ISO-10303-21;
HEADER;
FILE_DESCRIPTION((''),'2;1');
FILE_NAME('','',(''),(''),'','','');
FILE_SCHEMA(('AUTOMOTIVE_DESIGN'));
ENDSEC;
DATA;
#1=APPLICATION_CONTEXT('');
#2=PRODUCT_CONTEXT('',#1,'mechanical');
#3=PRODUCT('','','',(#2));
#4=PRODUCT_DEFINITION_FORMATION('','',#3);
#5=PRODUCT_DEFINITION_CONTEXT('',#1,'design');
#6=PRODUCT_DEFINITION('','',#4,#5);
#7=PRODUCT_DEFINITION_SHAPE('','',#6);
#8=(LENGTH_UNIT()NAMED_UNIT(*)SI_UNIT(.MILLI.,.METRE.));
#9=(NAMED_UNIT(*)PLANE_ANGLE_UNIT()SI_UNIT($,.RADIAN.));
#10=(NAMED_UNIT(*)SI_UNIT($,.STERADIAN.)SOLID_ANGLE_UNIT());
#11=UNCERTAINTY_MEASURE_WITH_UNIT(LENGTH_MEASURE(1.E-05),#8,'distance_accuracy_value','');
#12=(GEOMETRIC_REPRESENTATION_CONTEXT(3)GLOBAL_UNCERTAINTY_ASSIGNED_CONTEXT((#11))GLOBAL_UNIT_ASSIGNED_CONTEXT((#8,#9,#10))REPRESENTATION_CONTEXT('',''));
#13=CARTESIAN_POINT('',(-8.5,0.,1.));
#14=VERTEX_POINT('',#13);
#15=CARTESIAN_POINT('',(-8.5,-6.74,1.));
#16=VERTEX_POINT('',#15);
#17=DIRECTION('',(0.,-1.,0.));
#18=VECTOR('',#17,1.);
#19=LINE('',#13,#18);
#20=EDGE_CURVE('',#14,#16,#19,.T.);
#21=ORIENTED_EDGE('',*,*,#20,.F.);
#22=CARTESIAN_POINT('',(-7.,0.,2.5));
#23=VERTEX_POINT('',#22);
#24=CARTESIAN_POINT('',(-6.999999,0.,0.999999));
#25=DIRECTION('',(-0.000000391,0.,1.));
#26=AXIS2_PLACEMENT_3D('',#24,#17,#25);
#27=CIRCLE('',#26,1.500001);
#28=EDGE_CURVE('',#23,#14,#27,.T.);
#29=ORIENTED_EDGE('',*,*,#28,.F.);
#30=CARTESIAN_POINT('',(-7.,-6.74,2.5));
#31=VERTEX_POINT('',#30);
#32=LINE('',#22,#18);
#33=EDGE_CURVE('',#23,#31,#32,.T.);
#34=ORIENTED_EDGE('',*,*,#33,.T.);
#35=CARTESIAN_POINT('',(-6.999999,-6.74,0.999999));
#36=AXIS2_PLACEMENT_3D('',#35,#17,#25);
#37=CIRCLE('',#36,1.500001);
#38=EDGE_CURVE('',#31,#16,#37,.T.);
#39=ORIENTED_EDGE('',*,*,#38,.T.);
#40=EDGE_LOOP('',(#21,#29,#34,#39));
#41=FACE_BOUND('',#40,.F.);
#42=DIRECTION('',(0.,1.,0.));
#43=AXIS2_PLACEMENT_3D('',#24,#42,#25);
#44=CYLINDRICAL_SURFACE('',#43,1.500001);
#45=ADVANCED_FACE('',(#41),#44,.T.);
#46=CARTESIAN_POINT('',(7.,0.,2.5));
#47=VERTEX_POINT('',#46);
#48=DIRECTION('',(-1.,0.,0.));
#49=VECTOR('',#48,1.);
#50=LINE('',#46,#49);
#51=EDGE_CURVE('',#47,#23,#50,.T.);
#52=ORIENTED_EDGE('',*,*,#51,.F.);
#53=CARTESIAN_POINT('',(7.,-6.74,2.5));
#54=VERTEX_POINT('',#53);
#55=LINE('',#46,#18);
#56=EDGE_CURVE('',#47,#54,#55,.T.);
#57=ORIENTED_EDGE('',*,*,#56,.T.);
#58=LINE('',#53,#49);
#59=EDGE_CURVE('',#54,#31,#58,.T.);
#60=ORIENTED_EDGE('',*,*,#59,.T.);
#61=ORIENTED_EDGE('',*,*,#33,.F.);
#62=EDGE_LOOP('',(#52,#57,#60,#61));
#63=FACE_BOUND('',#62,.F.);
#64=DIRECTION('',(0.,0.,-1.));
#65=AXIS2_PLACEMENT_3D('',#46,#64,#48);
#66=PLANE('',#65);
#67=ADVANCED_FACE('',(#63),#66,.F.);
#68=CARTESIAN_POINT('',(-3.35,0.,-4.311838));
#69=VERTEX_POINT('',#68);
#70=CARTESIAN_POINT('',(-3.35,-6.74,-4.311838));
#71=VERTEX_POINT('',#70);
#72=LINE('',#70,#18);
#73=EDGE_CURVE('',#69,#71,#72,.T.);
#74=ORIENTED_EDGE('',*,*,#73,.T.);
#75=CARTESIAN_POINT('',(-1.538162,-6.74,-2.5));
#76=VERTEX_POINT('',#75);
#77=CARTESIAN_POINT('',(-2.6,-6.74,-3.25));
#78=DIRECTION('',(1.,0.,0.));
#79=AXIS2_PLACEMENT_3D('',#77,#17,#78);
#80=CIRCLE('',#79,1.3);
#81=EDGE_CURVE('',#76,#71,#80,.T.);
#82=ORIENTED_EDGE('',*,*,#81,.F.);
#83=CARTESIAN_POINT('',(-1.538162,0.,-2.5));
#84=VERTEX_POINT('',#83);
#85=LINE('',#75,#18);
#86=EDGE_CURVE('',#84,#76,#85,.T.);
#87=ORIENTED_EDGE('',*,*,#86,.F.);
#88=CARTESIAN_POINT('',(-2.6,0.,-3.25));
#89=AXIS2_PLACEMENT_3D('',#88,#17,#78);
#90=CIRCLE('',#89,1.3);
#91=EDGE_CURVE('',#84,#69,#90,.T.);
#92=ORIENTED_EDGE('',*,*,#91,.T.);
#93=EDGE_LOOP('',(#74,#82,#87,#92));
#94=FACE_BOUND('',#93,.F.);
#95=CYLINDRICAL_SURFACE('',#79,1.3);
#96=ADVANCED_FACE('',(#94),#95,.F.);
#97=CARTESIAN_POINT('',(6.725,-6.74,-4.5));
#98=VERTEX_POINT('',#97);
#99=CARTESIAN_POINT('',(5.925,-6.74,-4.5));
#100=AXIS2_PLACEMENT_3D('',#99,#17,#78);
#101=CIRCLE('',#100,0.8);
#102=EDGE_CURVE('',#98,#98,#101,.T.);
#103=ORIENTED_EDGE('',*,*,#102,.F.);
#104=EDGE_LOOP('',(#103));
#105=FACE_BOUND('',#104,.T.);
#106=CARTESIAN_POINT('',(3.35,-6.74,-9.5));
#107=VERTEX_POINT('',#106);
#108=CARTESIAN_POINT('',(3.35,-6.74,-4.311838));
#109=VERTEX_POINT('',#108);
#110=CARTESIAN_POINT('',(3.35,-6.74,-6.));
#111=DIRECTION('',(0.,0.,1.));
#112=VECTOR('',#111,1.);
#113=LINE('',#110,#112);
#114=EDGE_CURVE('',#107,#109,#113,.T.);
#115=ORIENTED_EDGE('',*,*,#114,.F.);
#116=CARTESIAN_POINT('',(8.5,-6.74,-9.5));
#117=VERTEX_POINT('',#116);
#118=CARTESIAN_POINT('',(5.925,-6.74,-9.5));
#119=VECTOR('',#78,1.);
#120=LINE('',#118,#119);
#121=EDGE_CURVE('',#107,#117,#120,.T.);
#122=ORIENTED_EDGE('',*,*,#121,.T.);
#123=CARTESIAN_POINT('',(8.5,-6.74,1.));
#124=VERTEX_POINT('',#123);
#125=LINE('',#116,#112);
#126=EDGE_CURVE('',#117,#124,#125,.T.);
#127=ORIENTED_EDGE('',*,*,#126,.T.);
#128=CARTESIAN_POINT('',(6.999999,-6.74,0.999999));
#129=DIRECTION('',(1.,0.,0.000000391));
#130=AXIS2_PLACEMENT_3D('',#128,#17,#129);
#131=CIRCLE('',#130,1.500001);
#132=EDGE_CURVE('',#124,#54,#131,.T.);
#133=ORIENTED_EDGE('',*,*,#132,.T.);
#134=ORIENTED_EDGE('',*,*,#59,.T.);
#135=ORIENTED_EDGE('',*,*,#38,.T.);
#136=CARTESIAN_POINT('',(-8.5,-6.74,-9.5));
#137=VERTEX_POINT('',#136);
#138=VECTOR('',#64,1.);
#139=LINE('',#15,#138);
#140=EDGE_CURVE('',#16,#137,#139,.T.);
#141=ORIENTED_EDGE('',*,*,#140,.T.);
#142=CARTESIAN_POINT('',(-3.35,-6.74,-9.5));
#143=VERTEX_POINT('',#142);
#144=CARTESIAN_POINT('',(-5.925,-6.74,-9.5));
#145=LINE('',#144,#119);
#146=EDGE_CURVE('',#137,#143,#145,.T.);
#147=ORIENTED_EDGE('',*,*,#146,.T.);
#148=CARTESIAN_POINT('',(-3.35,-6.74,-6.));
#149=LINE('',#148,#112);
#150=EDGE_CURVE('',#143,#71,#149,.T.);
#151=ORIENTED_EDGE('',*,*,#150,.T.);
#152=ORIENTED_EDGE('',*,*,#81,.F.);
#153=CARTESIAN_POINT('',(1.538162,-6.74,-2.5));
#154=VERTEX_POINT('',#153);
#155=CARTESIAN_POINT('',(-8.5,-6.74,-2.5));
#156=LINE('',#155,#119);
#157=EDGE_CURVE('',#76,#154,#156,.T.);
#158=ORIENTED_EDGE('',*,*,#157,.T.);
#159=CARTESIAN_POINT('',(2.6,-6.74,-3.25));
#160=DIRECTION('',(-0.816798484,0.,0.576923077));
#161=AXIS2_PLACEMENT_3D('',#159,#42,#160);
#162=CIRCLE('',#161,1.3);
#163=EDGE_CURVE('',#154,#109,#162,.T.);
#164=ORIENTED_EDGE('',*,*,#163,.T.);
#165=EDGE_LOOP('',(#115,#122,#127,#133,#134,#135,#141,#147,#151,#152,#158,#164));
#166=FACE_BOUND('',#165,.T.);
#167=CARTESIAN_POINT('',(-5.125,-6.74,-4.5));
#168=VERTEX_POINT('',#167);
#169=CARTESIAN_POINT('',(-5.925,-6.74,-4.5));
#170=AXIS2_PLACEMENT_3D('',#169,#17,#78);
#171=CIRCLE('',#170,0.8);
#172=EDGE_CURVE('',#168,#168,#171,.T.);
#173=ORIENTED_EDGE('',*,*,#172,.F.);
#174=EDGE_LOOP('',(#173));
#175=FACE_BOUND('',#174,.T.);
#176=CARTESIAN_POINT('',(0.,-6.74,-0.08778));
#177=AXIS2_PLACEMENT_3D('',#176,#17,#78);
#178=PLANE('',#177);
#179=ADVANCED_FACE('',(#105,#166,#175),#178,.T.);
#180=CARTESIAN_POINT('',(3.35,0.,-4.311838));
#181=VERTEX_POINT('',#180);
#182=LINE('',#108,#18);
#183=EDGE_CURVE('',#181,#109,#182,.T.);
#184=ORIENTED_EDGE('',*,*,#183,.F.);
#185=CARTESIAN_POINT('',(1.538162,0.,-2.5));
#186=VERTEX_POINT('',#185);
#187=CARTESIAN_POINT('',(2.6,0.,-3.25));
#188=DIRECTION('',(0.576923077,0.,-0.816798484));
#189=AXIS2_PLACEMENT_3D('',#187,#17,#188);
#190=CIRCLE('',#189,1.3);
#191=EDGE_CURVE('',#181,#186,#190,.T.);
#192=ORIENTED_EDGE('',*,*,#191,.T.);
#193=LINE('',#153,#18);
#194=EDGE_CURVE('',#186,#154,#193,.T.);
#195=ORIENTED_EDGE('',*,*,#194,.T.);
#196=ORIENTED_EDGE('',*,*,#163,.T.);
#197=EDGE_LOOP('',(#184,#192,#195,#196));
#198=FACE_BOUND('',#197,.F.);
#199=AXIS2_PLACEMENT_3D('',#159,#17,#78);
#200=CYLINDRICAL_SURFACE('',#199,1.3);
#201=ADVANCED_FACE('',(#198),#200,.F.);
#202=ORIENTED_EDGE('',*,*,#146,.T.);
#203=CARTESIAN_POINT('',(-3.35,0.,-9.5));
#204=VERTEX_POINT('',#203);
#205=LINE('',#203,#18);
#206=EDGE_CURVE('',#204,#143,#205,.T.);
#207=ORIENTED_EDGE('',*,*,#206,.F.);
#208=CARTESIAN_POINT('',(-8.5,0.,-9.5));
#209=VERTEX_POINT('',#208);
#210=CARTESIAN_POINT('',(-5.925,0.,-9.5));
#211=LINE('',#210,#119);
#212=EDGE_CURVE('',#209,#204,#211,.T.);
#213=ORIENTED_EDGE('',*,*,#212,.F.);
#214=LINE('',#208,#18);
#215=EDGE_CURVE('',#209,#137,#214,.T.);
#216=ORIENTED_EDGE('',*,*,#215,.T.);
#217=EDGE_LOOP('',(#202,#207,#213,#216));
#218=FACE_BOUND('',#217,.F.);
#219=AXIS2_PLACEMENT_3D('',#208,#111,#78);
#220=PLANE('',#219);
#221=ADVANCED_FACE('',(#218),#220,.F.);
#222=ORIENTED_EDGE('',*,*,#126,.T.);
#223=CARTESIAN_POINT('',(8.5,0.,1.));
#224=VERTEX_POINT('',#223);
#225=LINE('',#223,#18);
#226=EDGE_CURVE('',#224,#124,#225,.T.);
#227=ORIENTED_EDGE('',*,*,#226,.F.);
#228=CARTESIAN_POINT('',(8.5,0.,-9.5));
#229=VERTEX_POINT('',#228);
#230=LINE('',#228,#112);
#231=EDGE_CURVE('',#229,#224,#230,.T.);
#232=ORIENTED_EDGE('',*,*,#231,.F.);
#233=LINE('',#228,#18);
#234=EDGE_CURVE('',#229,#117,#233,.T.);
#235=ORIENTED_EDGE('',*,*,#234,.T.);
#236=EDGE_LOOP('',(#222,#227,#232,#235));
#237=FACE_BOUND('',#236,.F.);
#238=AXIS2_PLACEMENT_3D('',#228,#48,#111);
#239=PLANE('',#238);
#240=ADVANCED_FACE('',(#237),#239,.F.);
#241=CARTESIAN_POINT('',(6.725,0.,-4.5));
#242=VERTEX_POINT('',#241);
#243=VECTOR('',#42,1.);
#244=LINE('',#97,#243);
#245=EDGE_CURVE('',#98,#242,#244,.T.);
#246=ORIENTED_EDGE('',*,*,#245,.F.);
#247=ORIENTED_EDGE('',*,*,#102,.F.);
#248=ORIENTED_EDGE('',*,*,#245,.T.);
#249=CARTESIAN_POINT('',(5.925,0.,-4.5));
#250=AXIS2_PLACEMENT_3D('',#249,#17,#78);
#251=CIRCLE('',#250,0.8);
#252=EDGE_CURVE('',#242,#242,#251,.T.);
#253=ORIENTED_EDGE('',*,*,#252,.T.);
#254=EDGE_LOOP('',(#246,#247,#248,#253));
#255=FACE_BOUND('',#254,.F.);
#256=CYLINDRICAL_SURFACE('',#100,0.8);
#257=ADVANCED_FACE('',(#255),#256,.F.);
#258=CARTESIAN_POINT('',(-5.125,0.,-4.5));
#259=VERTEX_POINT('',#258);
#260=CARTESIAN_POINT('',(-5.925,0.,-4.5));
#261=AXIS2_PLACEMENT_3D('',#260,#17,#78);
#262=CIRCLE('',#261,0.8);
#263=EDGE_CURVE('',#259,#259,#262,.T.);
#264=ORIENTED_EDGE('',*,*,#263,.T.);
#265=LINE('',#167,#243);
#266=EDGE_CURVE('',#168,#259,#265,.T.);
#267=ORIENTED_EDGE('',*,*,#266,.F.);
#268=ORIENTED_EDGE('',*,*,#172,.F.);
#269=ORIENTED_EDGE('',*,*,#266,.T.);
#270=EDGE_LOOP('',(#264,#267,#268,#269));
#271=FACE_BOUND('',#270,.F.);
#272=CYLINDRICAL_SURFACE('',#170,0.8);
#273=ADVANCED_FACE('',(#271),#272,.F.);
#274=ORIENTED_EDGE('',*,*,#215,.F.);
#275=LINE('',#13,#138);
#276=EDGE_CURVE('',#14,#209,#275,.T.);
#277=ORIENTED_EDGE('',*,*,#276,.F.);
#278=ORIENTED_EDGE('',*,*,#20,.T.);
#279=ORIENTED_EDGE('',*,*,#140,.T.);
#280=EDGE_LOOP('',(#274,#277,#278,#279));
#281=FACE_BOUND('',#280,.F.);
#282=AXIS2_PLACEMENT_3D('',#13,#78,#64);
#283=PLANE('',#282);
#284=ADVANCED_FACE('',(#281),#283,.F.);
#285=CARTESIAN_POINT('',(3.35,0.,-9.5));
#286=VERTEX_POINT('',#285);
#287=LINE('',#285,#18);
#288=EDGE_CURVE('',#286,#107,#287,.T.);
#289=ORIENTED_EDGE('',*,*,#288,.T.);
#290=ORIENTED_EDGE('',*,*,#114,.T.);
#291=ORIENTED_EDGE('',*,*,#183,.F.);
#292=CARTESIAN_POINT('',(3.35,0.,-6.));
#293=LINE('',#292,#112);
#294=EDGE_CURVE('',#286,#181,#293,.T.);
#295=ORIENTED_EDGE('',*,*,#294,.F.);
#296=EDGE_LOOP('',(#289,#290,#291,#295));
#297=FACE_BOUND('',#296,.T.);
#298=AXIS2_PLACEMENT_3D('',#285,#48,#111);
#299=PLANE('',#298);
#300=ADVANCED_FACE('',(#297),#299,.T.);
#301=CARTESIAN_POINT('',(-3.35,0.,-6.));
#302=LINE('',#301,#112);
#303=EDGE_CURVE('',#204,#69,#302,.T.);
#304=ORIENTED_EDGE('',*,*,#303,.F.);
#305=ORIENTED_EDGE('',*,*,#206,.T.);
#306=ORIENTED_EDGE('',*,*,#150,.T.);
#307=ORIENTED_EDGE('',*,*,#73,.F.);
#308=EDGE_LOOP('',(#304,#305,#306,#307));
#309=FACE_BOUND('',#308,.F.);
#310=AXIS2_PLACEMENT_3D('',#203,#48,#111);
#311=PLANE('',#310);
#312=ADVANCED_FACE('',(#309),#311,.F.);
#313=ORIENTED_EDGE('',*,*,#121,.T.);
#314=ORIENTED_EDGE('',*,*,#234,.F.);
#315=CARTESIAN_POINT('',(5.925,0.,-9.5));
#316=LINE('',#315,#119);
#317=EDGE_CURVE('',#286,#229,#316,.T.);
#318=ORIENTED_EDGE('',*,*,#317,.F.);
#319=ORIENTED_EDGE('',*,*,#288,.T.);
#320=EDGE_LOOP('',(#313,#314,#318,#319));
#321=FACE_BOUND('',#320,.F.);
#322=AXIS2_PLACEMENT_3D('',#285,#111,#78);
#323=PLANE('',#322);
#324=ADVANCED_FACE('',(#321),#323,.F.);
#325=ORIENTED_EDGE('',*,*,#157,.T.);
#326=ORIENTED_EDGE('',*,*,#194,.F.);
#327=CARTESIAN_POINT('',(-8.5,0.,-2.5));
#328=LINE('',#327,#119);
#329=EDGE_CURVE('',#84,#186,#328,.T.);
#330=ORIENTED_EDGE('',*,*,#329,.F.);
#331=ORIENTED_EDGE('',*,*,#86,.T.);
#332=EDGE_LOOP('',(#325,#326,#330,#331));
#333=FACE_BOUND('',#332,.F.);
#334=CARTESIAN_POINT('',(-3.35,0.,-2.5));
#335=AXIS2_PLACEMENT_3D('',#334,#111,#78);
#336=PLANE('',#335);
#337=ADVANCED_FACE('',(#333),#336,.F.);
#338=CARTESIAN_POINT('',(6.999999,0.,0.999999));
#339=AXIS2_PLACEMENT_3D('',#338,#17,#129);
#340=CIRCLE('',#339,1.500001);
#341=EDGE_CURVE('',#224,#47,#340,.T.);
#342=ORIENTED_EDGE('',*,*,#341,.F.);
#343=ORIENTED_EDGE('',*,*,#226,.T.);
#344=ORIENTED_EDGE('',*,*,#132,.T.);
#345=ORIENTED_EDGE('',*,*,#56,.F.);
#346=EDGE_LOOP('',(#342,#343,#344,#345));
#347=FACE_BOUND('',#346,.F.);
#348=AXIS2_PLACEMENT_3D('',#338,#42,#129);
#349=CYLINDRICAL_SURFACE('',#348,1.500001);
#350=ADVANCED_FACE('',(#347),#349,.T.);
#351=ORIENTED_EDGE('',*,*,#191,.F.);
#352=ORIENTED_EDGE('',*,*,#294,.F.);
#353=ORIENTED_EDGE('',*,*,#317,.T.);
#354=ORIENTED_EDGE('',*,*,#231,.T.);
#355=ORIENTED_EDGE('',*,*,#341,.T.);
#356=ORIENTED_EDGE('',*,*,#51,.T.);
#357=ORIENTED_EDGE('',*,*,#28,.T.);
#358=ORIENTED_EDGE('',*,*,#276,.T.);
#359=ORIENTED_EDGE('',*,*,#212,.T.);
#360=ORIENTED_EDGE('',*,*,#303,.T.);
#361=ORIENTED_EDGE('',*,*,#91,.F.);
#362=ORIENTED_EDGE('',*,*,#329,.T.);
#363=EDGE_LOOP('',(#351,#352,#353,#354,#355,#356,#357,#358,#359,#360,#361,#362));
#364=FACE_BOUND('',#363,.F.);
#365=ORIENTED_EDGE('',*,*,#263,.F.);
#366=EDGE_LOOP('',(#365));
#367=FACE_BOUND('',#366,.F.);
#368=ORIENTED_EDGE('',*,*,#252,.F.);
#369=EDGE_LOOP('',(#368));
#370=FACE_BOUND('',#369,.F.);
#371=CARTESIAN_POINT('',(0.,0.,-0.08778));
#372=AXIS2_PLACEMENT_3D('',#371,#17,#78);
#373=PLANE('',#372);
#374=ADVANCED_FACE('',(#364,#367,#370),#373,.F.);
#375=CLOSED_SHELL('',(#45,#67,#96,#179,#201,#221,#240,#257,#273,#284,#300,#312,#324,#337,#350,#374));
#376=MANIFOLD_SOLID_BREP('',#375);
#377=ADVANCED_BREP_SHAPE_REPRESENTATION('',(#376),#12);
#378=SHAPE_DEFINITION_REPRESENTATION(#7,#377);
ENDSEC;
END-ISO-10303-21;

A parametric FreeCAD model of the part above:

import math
import FreeCAD as App
import Part
import Sketcher
Q = App.Units.Quantity

doc = App.newDocument("Part")
body = doc.addObject("PartDesign::Body", "Body")

sketch1 = body.newObject("Sketcher::SketchObject", "Sketch")
sketch1.AttachmentSupport = (doc.getObject("XZ_Plane"), [""])
sketch1.MapMode = "FlatFace"
sketch1.addGeometry(Part.LineSegment(App.Vector(7, 2.5, 0), App.Vector(-7, 2.5, 0)), False)
sketch1.addGeometry(Part.ArcOfCircle(Part.Circle(App.Vector(-7, 1, 0), App.Vector(0, 0, 1), 1.5), math.radians(90), math.radians(180)), False)
sketch1.addGeometry(Part.LineSegment(App.Vector(-8.5, 1, 0), App.Vector(-8.5, -9.5, 0)), False)
sketch1.addGeometry(Part.LineSegment(App.Vector(-8.5, -9.5, 0), App.Vector(-3.4, -9.5, 0)), False)
sketch1.addGeometry(Part.LineSegment(App.Vector(-3.4, -9.5, 0), App.Vector(-3.4, -2.5, 0)), False)
sketch1.addGeometry(Part.LineSegment(App.Vector(-3.4, -2.5, 0), App.Vector(3.4, -2.5, 0)), False)
sketch1.addGeometry(Part.LineSegment(App.Vector(3.4, -2.5, 0), App.Vector(3.4, -9.5, 0)), False)
sketch1.addGeometry(Part.LineSegment(App.Vector(3.4, -9.5, 0), App.Vector(8.5, -9.5, 0)), False)
sketch1.addGeometry(Part.LineSegment(App.Vector(8.5, -9.5, 0), App.Vector(8.5, 1, 0)), False)
sketch1.addGeometry(Part.ArcOfCircle(Part.Circle(App.Vector(7, 1, 0), App.Vector(0, 0, 1), 1.5), math.radians(0), math.radians(90)), False)
sketch1.addConstraint(Sketcher.Constraint("Tangent", 0, 2, 1, 1))
sketch1.addConstraint(Sketcher.Constraint("Tangent", 1, 2, 2, 1))
sketch1.addConstraint(Sketcher.Constraint("Coincident", 2, 2, 3, 1))
sketch1.addConstraint(Sketcher.Constraint("Coincident", 3, 2, 4, 1))
sketch1.addConstraint(Sketcher.Constraint("Coincident", 4, 2, 5, 1))
sketch1.addConstraint(Sketcher.Constraint("Coincident", 5, 2, 6, 1))
sketch1.addConstraint(Sketcher.Constraint("Coincident", 6, 2, 7, 1))
sketch1.addConstraint(Sketcher.Constraint("Coincident", 7, 2, 8, 1))
sketch1.addConstraint(Sketcher.Constraint("Tangent", 8, 2, 9, 1))
sketch1.addConstraint(Sketcher.Constraint("Tangent", 9, 2, 0, 1))
sketch1.addConstraint(Sketcher.Constraint("Horizontal", 0))
sketch1.addConstraint(Sketcher.Constraint("Vertical", 2))
sketch1.addConstraint(Sketcher.Constraint("Horizontal", 3))
sketch1.addConstraint(Sketcher.Constraint("Vertical", 4))
sketch1.addConstraint(Sketcher.Constraint("Horizontal", 5))
sketch1.addConstraint(Sketcher.Constraint("Vertical", 6))
sketch1.addConstraint(Sketcher.Constraint("Horizontal", 7))
sketch1.addConstraint(Sketcher.Constraint("Vertical", 8))
sketch1.addConstraint(Sketcher.Constraint("Equal", 1, 9))
sketch1.addConstraint(Sketcher.Constraint("Symmetric", 3, 2, 6, 2, -2))
sketch1.addConstraint(Sketcher.Constraint("Equal", 3, 7))
sketch1.addConstraint(Sketcher.Constraint("Radius", 1, Q("1.500001 mm")))
sketch1.addConstraint(Sketcher.Constraint("DistanceX", 0, 2, 0, 1, Q("14 mm")))
sketch1.addConstraint(Sketcher.Constraint("DistanceY", 4, 1, 4, 2, Q("7 mm")))
sketch1.addConstraint(Sketcher.Constraint("DistanceX", 5, 1, 5, 2, Q("6.7 mm")))
sketch1.addConstraint(Sketcher.Constraint("DistanceY", 2, 2, 2, 1, Q("10.5 mm")))
sketch1.addConstraint(Sketcher.Constraint("DistanceY", -1, 1, 1, 3, Q("0.999999 mm")))
pad1 = body.newObject("PartDesign::Pad", "Pad")
pad1.Profile = sketch1
pad1.Length = 6.74

sketch2 = body.newObject("Sketcher::SketchObject", "Sketch001")
sketch2.AttachmentSupport = (doc.getObject("XZ_Plane"), [""])
sketch2.MapMode = "FlatFace"
sketch2.AttachmentOffset = App.Placement(App.Vector(0, 0, 6.74), App.Rotation())
sketch2.addGeometry(Part.Circle(App.Vector(-2.6, -3.2, 0), App.Vector(0, 0, 1), 1.3), False)
sketch2.addGeometry(Part.Circle(App.Vector(2.6, -3.2, 0), App.Vector(0, 0, 1), 1.3), False)
sketch2.addConstraint(Sketcher.Constraint("Equal", 0, 1))
sketch2.addConstraint(Sketcher.Constraint("Symmetric", 0, 3, 1, 3, -2))
sketch2.addConstraint(Sketcher.Constraint("Diameter", 0, Q("2.6 mm")))
sketch2.addConstraint(Sketcher.Constraint("DistanceX", 0, 3, -1, 1, Q("2.6 mm")))
sketch2.addConstraint(Sketcher.Constraint("DistanceY", 0, 3, -1, 1, Q("3.25 mm")))
pocket1 = body.newObject("PartDesign::Pocket", "Pocket")
pocket1.Profile = sketch2
pocket1.Length = 25

sketch3 = body.newObject("Sketcher::SketchObject", "Sketch002")
sketch3.AttachmentSupport = (doc.getObject("XZ_Plane"), [""])
sketch3.MapMode = "FlatFace"
sketch3.AttachmentOffset = App.Placement(App.Vector(0, 0, 6.74), App.Rotation())
sketch3.addGeometry(Part.Circle(App.Vector(-5.9, -4.5, 0), App.Vector(0, 0, 1), 0.8), False)
sketch3.addGeometry(Part.Circle(App.Vector(5.9, -4.5, 0), App.Vector(0, 0, 1), 0.8), False)
sketch3.addConstraint(Sketcher.Constraint("Equal", 0, 1))
sketch3.addConstraint(Sketcher.Constraint("Symmetric", 0, 3, 1, 3, -2))
sketch3.addConstraint(Sketcher.Constraint("Diameter", 0, Q("1.6 mm")))
sketch3.addConstraint(Sketcher.Constraint("DistanceY", 0, 3, -1, 1, Q("4.5 mm")))
sketch3.addConstraint(Sketcher.Constraint("DistanceX", 0, 3, 1, 3, Q("11.85 mm")))
pocket2 = body.newObject("PartDesign::Pocket", "Pocket001")
pocket2.Profile = sketch3
pocket2.Type = "ThroughAll"

doc.recompute()
